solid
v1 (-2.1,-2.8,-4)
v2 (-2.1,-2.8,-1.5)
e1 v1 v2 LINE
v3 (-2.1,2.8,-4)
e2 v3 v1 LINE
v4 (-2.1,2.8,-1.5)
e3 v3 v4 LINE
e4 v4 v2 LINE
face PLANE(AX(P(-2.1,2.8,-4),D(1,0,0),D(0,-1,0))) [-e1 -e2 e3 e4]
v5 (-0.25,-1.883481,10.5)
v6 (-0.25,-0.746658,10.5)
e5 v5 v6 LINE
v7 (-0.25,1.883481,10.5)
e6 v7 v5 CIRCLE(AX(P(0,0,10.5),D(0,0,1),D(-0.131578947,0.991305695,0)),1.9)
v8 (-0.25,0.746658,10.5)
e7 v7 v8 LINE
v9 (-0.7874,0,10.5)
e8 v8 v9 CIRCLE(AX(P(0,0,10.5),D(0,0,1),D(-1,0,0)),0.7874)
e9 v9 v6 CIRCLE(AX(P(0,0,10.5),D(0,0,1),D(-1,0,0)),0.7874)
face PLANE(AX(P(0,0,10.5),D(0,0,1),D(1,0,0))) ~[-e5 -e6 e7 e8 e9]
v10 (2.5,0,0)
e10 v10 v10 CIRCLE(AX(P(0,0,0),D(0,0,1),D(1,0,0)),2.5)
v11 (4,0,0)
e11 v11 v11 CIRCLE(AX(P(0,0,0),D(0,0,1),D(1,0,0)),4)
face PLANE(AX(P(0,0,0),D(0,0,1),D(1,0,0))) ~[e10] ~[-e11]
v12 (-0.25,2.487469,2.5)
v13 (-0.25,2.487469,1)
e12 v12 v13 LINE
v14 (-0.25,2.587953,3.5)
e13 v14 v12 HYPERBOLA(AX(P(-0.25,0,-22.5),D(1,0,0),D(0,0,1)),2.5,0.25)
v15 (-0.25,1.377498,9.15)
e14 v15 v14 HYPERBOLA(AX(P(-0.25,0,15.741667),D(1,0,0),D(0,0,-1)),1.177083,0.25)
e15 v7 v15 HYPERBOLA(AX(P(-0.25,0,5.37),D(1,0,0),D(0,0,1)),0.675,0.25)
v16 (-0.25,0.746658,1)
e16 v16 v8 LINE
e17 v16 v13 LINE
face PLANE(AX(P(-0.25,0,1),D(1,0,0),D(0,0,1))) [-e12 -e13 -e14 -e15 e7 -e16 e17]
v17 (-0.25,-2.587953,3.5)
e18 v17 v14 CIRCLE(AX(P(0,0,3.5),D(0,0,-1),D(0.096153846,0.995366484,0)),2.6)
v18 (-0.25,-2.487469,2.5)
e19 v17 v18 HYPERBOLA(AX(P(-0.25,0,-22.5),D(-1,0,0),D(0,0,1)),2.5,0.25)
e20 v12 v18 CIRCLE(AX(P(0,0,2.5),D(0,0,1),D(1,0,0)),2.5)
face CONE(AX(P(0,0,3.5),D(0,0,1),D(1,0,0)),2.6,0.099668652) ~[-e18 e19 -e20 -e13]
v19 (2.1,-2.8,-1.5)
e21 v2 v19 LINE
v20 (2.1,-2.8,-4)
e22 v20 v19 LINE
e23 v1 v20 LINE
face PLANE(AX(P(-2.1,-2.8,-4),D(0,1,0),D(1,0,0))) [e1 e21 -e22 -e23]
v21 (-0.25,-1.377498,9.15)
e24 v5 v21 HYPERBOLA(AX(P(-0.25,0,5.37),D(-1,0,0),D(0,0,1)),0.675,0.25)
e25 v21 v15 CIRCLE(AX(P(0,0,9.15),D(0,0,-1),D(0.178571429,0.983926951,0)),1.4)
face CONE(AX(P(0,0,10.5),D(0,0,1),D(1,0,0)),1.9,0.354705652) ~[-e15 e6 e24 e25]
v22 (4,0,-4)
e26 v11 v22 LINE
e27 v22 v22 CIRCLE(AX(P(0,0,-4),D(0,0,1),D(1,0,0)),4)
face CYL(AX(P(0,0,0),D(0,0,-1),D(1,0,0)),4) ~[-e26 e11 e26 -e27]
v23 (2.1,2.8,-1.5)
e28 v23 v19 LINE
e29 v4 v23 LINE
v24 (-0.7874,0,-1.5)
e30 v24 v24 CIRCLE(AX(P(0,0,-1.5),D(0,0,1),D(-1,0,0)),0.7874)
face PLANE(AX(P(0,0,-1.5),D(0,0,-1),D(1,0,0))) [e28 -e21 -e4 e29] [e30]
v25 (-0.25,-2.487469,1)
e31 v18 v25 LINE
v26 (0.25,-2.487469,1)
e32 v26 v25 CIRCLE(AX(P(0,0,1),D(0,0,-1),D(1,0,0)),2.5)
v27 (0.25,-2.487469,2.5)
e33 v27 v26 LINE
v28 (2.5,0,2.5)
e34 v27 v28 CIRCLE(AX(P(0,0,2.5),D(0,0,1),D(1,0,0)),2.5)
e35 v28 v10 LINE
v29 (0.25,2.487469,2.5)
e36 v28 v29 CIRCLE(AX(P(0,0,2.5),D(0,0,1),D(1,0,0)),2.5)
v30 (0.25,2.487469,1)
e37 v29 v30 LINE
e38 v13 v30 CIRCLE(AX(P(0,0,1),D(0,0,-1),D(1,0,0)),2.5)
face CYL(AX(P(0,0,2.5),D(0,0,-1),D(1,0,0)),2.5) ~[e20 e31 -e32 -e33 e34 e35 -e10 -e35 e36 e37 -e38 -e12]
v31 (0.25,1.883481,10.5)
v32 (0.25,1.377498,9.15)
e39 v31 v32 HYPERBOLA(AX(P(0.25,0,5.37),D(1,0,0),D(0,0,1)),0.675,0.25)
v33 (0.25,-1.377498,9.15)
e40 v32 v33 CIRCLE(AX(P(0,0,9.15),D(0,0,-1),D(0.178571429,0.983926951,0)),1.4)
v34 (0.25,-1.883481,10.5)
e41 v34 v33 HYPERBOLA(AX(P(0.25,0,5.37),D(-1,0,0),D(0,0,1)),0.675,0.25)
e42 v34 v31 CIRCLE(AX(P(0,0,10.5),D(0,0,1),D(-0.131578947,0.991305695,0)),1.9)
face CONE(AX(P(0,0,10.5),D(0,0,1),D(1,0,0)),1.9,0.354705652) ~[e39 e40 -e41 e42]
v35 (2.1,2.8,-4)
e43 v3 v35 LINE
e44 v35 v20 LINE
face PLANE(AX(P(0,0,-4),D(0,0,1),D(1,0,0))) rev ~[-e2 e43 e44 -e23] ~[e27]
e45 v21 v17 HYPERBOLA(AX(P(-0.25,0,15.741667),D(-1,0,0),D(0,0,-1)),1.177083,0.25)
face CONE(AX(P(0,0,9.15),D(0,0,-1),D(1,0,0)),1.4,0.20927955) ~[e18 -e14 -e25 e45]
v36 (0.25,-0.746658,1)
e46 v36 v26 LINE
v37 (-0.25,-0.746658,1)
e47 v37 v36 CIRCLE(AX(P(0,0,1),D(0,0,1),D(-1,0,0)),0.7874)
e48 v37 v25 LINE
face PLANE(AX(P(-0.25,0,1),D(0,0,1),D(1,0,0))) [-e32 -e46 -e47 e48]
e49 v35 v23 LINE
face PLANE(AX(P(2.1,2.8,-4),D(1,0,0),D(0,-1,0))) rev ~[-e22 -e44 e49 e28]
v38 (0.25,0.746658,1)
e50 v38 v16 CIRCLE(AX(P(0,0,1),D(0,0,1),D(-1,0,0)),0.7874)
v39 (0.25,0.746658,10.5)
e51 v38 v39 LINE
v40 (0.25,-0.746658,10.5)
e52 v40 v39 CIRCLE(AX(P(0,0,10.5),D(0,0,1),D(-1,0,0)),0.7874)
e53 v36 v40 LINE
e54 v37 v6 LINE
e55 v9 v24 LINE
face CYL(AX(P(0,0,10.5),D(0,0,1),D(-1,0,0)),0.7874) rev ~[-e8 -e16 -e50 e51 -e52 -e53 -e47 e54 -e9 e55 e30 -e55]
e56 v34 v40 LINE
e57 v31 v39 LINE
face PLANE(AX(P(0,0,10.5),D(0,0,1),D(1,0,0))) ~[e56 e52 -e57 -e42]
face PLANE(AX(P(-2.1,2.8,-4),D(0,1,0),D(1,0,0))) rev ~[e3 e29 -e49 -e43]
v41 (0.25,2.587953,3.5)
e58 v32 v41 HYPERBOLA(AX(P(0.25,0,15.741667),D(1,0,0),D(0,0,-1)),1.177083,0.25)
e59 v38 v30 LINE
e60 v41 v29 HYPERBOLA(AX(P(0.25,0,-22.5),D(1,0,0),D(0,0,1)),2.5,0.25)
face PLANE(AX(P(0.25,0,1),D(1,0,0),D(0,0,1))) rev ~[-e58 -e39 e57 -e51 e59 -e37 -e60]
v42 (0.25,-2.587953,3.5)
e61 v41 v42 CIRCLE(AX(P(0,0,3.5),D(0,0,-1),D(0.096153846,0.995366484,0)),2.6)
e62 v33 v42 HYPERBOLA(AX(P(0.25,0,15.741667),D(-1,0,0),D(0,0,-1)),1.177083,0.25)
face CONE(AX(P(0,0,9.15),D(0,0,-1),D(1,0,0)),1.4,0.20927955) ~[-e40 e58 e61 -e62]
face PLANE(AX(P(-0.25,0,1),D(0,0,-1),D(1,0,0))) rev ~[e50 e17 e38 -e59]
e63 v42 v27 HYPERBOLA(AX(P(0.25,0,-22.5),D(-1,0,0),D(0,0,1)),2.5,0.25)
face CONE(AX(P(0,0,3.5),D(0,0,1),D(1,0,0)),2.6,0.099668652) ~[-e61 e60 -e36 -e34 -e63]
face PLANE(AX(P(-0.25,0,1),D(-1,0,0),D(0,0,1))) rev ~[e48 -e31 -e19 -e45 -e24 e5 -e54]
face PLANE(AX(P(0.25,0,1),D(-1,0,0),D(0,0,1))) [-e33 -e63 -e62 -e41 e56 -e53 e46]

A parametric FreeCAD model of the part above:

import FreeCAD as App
import Part
import Sketcher


def add_polygon(sketch, points):
    """Adds a closed chain of lines whose ends are joined by coincident constraints."""
    first, n = sketch.GeometryCount, len(points)
    for a, b in zip(points, points[1:] + points[:1]):
        sketch.addGeometry(Part.LineSegment(App.Vector(*a, 0), App.Vector(*b, 0)), False)
    for i in range(n):
        sketch.addConstraint(Sketcher.Constraint("Coincident", first + i, 2, first + (i + 1) % n, 1))

doc = App.newDocument("Part")
body = doc.addObject("PartDesign::Body", "Body")

sketch1 = body.newObject("Sketcher::SketchObject", "Sketch")
sketch1.AttachmentSupport = (doc.getObject("XZ_Plane"), [""])
sketch1.MapMode = "FlatFace"
add_polygon(sketch1, [(4, 0), (2.5, 0), (2.5, 2.5), (2.6, 3.5), (1.4, 9.2), (1.9, 10.5), (0, 10.5), (0, -4), (4, -4)])
sketch1.addConstraint([
    Sketcher.Constraint("Horizontal", 0),
    Sketcher.Constraint("Vertical", 1),
    Sketcher.Constraint("Horizontal", 5),
    Sketcher.Constraint("Vertical", 6),
    Sketcher.Constraint("Horizontal", 7),
    Sketcher.Constraint("Vertical", 8),
    Sketcher.Constraint("PointOnObject", 0, 2, -1),
    Sketcher.Constraint("PointOnObject", 5, 2, -2),
    Sketcher.Constraint("Equal", 7, 8),
    Sketcher.Constraint("DistanceX", 7, 1, 7, 2, 4.0),
    Sketcher.Constraint("DistanceX", 0, 2, 0, 1, 1.5),
    Sketcher.Constraint("DistanceX", 5, 2, 5, 1, 1.9),
    Sketcher.Constraint("DistanceY", 1, 1, 1, 2, 2.5),
    Sketcher.Constraint("DistanceY", 6, 2, 6, 1, 14.5),
    Sketcher.Constraint("DistanceY", 1, 2, 2, 2, 1.0),
    Sketcher.Constraint("DistanceX", -1, 1, 2, 2, 2.6),
    Sketcher.Constraint("DistanceX", -1, 1, 3, 2, 1.4),
    Sketcher.Constraint("DistanceY", -1, 1, 3, 2, 9.15),
])
revolution = body.newObject("PartDesign::Revolution", "Revolution")
revolution.Profile = sketch1
revolution.ReferenceAxis = (sketch1, ["V_Axis"])
revolution.Angle = 360

sketch2 = body.newObject("Sketcher::SketchObject", "Sketch001")
sketch2.AttachmentSupport = (doc.getObject("XY_Plane"), [""])
sketch2.MapMode = "FlatFace"
sketch2.AttachmentOffset = App.Placement(App.Vector(0, 0, -4), App.Rotation())
add_polygon(sketch2, [(-2.1, -2.8), (-2.1, 2.8), (2.1, 2.8), (2.1, -2.8)])
sketch2.addConstraint([
    Sketcher.Constraint("Vertical", 0),
    Sketcher.Constraint("Horizontal", 1),
    Sketcher.Constraint("Vertical", 2),
    Sketcher.Constraint("Horizontal", 3),
    Sketcher.Constraint("Symmetric", 0, 2, 2, 2, -1, 1),
    Sketcher.Constraint("DistanceX", 1, 1, 1, 2, 4.2),
    Sketcher.Constraint("DistanceY", 0, 1, 0, 2, 5.6),
])
pocket1 = body.newObject("PartDesign::Pocket", "Pocket")
pocket1.Profile = sketch2
pocket1.Length = 2.5
pocket1.Reversed = True

sketch3 = body.newObject("Sketcher::SketchObject", "Sketch002")
sketch3.AttachmentSupport = (doc.getObject("XY_Plane"), [""])
sketch3.MapMode = "FlatFace"
sketch3.AttachmentOffset = App.Placement(App.Vector(0, 0, 10.5), App.Rotation())
sketch3.addGeometry(Part.Circle(App.Vector(0, 0, 0), App.Vector(0, 0, 1), 0.8), False)
sketch3.addConstraint([
    Sketcher.Constraint("Coincident", 0, 3, -1, 1),
    Sketcher.Constraint("Diameter", 0, 1.5748),
])
pocket2 = body.newObject("PartDesign::Pocket", "Pocket001")
pocket2.Profile = sketch3
pocket2.Type = "ThroughAll"

sketch4 = body.newObject("Sketcher::SketchObject", "Sketch003")
sketch4.AttachmentSupport = (doc.getObject("XZ_Plane"), [""])
sketch4.MapMode = "FlatFace"
add_polygon(sketch4, [(-0.2, 12.9), (-0.2, 1), (0.2, 1), (0.2, 12.9)])
add_polygon(sketch4, [(-0.2, -10.4), (-0.2, -16.5), (0.2, -16.5), (0.2, -10.4)])
sketch4.addConstraint([
    Sketcher.Constraint("Vertical", 0),
    Sketcher.Constraint("Horizontal", 1),
    Sketcher.Constraint("Vertical", 2),
    Sketcher.Constraint("Horizontal", 3),
    Sketcher.Constraint("Vertical", 4),
    Sketcher.Constraint("Horizontal", 5),
    Sketcher.Constraint("Vertical", 6),
    Sketcher.Constraint("Horizontal", 7),
    Sketcher.Constraint("Vertical", 3, 2, 4, 2),
    Sketcher.Constraint("Vertical", 2, 2, 5, 2),
    Sketcher.Constraint("DistanceX", 1, 1, 1, 2, 0.5),
    Sketcher.Constraint("DistanceY", -1, 1, 0, 2, 1.0),
    Sketcher.Constraint("DistanceX", 0, 2, -1, 1, 0.25),
    Sketcher.Constraint("DistanceY", 0, 2, 0, 1, 11.942059),
    Sketcher.Constraint("DistanceY", 4, 2, 4, 1, 6.122161),
    Sketcher.Constraint("DistanceY", 4, 2, -1, 1, 16.536715),
])
pocket3 = body.newObject("PartDesign::Pocket", "Pocket002")
pocket3.Profile = sketch4
pocket3.Type = "ThroughAll"
pocket3.Midplane = True

doc.recompute()
